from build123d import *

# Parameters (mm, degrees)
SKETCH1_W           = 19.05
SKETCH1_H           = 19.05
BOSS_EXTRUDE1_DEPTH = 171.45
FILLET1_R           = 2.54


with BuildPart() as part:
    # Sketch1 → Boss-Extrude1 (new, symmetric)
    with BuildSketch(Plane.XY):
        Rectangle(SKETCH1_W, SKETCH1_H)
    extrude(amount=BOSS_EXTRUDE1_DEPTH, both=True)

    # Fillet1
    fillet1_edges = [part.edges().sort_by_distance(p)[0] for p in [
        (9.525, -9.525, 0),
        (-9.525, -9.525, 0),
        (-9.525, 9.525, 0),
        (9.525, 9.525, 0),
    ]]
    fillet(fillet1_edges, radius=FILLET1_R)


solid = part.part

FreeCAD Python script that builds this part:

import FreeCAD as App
import Part
import Sketcher

V = App.Vector
Q = App.Units.Quantity


def edges_at(feature, points):
    """Names of the edges that pass closest to the given points."""
    edges = feature.Shape.Edges
    near = lambda p: min(range(len(edges)), key=lambda i: edges[i].distToShape(Part.Vertex(*p))[0])
    return sorted({f"Edge{near(p) + 1}" for p in points})

doc = App.newDocument("Part")
body = doc.addObject("PartDesign::Body", "Body")

# Sketch on XY plane
sketch1 = doc.addObject("Sketcher::SketchObject", "Sketch")
body.addObject(sketch1)
sketch1.AttachmentSupport = (doc.XY_Plane, [""])
sketch1.MapMode = "FlatFace"
sketch1.addGeometry([
    Part.LineSegment(V(-10, 10, 0), V(-10, -10, 0)),
    Part.LineSegment(V(-10, -10, 0), V(10, -10, 0)),
    Part.LineSegment(V(10, -10, 0), V(10, 10, 0)),
    Part.LineSegment(V(10, 10, 0), V(-10, 10, 0)),
], False)
sketch1.addConstraint([
    Sketcher.Constraint("Coincident", 0, 2, 1, 1),
    Sketcher.Constraint("Coincident", 1, 2, 2, 1),
    Sketcher.Constraint("Coincident", 2, 2, 3, 1),
    Sketcher.Constraint("Coincident", 3, 2, 0, 1),
    Sketcher.Constraint("Vertical", 0),
    Sketcher.Constraint("Horizontal", 1),
    Sketcher.Constraint("Vertical", 2),
    Sketcher.Constraint("Horizontal", 3),
    Sketcher.Constraint("Symmetric", 0, 2, 2, 2, -1, 1),
    Sketcher.Constraint("Equal", 3, 0),
    Sketcher.Constraint("DistanceX", 1, 1, 1, 2, Q("0.75 in")),
])
pad1 = doc.addObject("PartDesign::Pad", "Pad")
body.addObject(pad1)
pad1.Profile = sketch1
pad1.Length = Q("13.5 in")
pad1.Midplane = True
doc.recompute()

fillet = doc.addObject("PartDesign::Fillet", "Fillet")
body.addObject(fillet)
fillet.Base = (pad1, edges_at(pad1, [
    (9.525, -9.525, 0),
    (-9.525, -9.525, 0),
    (-9.525, 9.525, 0),
    (9.525, 9.525, 0),
]))
fillet.Radius = Q("0.1 in")

doc.recompute()
